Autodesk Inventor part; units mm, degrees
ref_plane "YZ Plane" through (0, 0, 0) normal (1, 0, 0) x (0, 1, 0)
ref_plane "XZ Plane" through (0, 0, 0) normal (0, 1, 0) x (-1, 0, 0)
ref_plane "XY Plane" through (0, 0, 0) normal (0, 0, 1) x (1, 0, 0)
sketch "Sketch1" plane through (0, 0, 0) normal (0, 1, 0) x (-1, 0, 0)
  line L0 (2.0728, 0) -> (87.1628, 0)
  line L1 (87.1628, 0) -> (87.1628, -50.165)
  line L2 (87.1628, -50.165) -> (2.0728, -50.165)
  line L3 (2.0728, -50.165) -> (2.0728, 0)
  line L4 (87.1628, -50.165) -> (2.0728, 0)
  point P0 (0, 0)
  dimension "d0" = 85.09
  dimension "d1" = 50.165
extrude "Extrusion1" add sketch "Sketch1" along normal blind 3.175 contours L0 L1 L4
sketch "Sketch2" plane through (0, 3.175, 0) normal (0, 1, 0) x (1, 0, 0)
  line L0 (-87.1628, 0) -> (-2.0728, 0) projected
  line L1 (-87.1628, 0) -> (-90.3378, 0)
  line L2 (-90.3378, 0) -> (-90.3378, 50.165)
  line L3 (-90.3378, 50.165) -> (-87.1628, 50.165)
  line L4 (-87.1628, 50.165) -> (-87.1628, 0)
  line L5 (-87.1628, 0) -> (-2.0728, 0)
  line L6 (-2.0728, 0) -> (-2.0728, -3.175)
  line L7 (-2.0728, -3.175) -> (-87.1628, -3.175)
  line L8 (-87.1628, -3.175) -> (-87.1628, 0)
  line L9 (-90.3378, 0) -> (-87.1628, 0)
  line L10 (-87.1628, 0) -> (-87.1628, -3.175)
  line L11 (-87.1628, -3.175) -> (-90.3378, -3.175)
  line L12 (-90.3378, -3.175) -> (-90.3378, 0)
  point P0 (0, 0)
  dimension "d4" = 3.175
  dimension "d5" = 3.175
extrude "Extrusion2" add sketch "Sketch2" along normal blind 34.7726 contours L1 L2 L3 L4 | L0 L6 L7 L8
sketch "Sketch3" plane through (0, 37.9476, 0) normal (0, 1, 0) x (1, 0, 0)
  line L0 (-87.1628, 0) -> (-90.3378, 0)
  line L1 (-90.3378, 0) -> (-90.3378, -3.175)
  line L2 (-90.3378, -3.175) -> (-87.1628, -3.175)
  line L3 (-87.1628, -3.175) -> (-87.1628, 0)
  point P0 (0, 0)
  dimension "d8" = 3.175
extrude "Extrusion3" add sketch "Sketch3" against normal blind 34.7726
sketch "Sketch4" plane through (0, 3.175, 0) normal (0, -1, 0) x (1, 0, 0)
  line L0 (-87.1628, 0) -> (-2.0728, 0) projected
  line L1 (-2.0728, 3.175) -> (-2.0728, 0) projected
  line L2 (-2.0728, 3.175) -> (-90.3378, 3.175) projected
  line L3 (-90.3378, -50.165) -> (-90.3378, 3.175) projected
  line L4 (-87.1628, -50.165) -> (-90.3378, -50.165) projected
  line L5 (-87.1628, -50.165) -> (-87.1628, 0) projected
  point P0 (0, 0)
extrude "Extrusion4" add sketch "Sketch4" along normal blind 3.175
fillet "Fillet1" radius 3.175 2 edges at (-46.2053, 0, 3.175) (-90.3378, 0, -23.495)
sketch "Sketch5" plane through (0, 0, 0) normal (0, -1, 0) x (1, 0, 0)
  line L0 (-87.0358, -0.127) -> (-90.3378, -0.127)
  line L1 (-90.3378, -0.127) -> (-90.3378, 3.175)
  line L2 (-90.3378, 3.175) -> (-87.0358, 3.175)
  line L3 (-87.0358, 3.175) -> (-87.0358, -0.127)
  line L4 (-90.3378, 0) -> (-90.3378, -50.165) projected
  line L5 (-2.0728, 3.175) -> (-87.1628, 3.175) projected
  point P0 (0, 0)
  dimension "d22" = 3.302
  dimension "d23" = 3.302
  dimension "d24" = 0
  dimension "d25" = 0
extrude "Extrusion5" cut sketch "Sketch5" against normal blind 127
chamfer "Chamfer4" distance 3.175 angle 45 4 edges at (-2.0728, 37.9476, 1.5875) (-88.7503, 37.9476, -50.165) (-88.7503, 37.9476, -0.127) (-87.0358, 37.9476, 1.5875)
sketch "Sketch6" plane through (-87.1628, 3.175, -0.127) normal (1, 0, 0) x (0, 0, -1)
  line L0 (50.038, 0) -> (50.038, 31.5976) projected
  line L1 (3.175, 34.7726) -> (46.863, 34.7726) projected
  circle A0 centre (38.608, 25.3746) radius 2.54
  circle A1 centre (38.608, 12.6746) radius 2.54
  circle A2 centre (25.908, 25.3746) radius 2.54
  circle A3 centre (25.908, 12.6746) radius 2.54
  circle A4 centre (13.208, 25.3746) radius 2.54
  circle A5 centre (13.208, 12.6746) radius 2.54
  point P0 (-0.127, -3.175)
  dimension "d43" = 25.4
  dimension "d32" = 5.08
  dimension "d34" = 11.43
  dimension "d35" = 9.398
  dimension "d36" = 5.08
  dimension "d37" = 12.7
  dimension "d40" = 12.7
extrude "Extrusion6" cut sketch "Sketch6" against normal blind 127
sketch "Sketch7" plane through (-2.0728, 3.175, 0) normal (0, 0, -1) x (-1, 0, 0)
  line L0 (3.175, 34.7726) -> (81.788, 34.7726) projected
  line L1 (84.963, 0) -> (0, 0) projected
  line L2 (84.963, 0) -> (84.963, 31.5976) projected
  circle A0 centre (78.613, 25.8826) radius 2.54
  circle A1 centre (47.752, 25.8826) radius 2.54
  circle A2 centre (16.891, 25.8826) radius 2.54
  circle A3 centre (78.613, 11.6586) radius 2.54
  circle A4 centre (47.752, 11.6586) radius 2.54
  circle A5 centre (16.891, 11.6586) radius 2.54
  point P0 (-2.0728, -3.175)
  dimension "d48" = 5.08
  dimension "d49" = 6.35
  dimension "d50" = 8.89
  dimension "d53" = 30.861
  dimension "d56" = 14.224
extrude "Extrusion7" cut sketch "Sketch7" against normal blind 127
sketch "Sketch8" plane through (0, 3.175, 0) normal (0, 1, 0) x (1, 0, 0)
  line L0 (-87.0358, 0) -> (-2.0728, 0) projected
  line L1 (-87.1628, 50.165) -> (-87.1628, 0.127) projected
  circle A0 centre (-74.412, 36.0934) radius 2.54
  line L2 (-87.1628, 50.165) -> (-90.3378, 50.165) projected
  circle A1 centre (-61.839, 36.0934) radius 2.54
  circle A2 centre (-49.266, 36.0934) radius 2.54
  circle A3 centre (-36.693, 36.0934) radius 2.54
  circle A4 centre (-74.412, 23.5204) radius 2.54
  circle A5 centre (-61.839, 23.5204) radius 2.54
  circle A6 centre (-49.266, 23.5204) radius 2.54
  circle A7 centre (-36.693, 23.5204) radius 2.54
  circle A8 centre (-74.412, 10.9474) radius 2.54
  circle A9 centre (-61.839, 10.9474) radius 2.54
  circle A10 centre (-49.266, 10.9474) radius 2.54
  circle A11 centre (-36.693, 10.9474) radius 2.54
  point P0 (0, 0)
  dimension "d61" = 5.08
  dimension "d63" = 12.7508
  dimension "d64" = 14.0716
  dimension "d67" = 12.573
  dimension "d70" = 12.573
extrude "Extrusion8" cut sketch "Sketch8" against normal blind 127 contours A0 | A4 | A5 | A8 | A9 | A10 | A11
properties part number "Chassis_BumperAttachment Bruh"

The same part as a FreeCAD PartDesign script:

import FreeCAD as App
import Part
import Sketcher
from FreeCAD import Vector
Q = App.Units.Quantity


def edges_at(feature, points):
    """Names of the edges that pass closest to the given points."""
    edges = feature.Shape.Edges
    near = lambda p: min(range(len(edges)), key=lambda i: edges[i].distToShape(Part.Vertex(*p))[0])
    return sorted({f"Edge{near(p) + 1}" for p in points})

doc = App.newDocument("Part")
params = doc.addObject("Spreadsheet::Sheet", "Params")
for row, (alias, value) in enumerate([
    ("sketch1_width", "3.35 in"),
    ("sketch1_height", "1.975 in"),
    ("pad1_length", "0.125 in"),
    ("sketch2_width", "0.125 in"),
    ("sketch2_width2", "3.35 in"),
    ("pad2_length", "1.369 in"),
    ("sketch3_width", "0.125 in"),
    ("pad3_length", "1.369 in"),
    ("sketch4_height", "2.1 in"),
    ("sketch4_width", "3.35 in"),
    ("sketch4_width2", "3.475 in"),
    ("pad4_length", "0.125 in"),
    ("fillet_radius", "0.125 in"),
    ("sketch5_width", "0.13 in"),
    ("pocket1_length", "5 in"),
    ("chamfer_size", "0.125 in"),
    ("sketch6_diameter", "0.2 in"),
    ("pocket2_length", "5 in"),
    ("sketch7_diameter", "0.2 in"),
    ("pocket3_length", "5 in"),
    ("sketch8_diameter", "0.2 in"),
    ("pocket4_length", "5 in"),
], start=1):
    params.set(f"A{row}", alias)
    params.set(f"B{row}", "=" + value)
    params.setAlias(f"B{row}", alias)

body = doc.addObject("PartDesign::Body", "Body")
body.AllowCompound = True

# Sketch on XZ plane
sketch1 = body.newObject("Sketcher::SketchObject", "Sketch")
sketch1.AttachmentSupport = (doc.getObject("XZ_Plane"), [""])
sketch1.MapMode = "FlatFace"
sketch1.addGeometry([
    Part.LineSegment(Vector(-87, 0, 0), Vector(-2, 0, 0)),
    Part.LineSegment(Vector(-2, 0, 0), Vector(-87, -50, 0)),
    Part.LineSegment(Vector(-87, -50, 0), Vector(-87, 0, 0)),
], False)
sketch1.addConstraint([
    Sketcher.Constraint("Coincident", 0, 2, 1, 1),
    Sketcher.Constraint("Coincident", 1, 2, 2, 1),
    Sketcher.Constraint("Coincident", 2, 2, 0, 1),
    Sketcher.Constraint("Horizontal", 0),
    Sketcher.Constraint("Vertical", 2),
    Sketcher.Constraint("PointOnObject", 0, 2, -1),
    Sketcher.Constraint("DistanceX", 0, 1, 0, 2, Q("3.35 in")),
    Sketcher.Constraint("DistanceY", 2, 1, 2, 2, Q("1.975 in")),
    Sketcher.Constraint("DistanceX", 0, 2, -1, 1, Q("0.0816 in")),
])
sketch1.setExpression("Constraints[6]", "Params.sketch1_width")
sketch1.setExpression("Constraints[7]", "Params.sketch1_height")
pad1 = body.newObject("PartDesign::Pad", "Pad")
pad1.Profile = sketch1
pad1.setExpression("Length", "Params.pad1_length")
pad1.Reversed = True

# Sketch on XZ plane
sketch2 = body.newObject("Sketcher::SketchObject", "Sketch001")
sketch2.AttachmentSupport = (doc.getObject("XZ_Plane"), [""])
sketch2.MapMode = "FlatFace"
sketch2.AttachmentOffset = App.Placement(Vector(0, 0, -0.125 * 25.4), App.Rotation())
sketch2.addGeometry([
    Part.LineSegment(Vector(-90.3, 0, 0), Vector(-87.2, 0, 0)),  # 0
    Part.LineSegment(Vector(-87.2, 0, 0), Vector(-87.2, -50.2, 0)),  # 1
    Part.LineSegment(Vector(-87.2, -50.2, 0), Vector(-90.3, -50.2, 0)),  # 2
    Part.LineSegment(Vector(-90.3, -50.2, 0), Vector(-90.3, 0, 0)),  # 3
    Part.LineSegment(Vector(-2.1, 0, 0), Vector(-87.2, 0, 0)),  # 4
    Part.LineSegment(Vector(-87.2, 0, 0), Vector(-87.2, 3.2, 0)),  # 5
    Part.LineSegment(Vector(-87.2, 3.2, 0), Vector(-2.1, 3.2, 0)),  # 6
    Part.LineSegment(Vector(-2.1, 3.2, 0), Vector(-2.1, 0, 0)),  # 7
], False)
sketch2.addConstraint([
    Sketcher.Constraint("Coincident", 0, 2, 1, 1),
    Sketcher.Constraint("Coincident", 1, 2, 2, 1),
    Sketcher.Constraint("Coincident", 2, 2, 3, 1),
    Sketcher.Constraint("Coincident", 3, 2, 0, 1),
    Sketcher.Constraint("Coincident", 4, 2, 5, 1),
    Sketcher.Constraint("Coincident", 5, 2, 6, 1),
    Sketcher.Constraint("Coincident", 6, 2, 7, 1),
    Sketcher.Constraint("Coincident", 7, 2, 4, 1),
    Sketcher.Constraint("Horizontal", 0),
    Sketcher.Constraint("Vertical", 1),
    Sketcher.Constraint("Horizontal", 2),
    Sketcher.Constraint("Vertical", 3),
    Sketcher.Constraint("Horizontal", 4),
    Sketcher.Constraint("Vertical", 5),
    Sketcher.Constraint("Horizontal", 6),
    Sketcher.Constraint("Vertical", 7),
    Sketcher.Constraint("Coincident", 4, 2, 0, 2),
    Sketcher.Constraint("PointOnObject", 0, 2, -1),
    Sketcher.Constraint("Equal", 2, 5),
    Sketcher.Constraint("DistanceX", 0, 1, 0, 2, Q("0.125 in")),
    Sketcher.Constraint("DistanceX", 4, 2, 4, 1, Q("3.35 in")),
    Sketcher.Constraint("DistanceY", 1, 2, 5, 2, Q("2.1 in")),
    Sketcher.Constraint("DistanceX", 0, 2, -1, 1, Q("3.4316 in")),
])
sketch2.setExpression("Constraints[19]", "Params.sketch2_width")
sketch2.setExpression("Constraints[20]", "Params.sketch2_width2")
pad2 = body.newObject("PartDesign::Pad", "Pad001")
pad2.Profile = sketch2
pad2.setExpression("Length", "Params.pad2_length")
pad2.Reversed = True

# Sketch on XZ plane
sketch3 = body.newObject("Sketcher::SketchObject", "Sketch002")
sketch3.AttachmentSupport = (doc.getObject("XZ_Plane"), [""])
sketch3.MapMode = "FlatFace"
sketch3.AttachmentOffset = App.Placement(Vector(0, 0, -1.494 * 25.4), App.Rotation())
sketch3.addGeometry([
    Part.LineSegment(Vector(-87.2, 3.2, 0), Vector(-87.2, 0, 0)),
    Part.LineSegment(Vector(-87.2, 0, 0), Vector(-90.3, 0, 0)),
    Part.LineSegment(Vector(-90.3, 0, 0), Vector(-90.3, 3.2, 0)),
    Part.LineSegment(Vector(-90.3, 3.2, 0), Vector(-87.2, 3.2, 0)),
], False)
sketch3.addConstraint([
    Sketcher.Constraint("Coincident", 0, 2, 1, 1),
    Sketcher.Constraint("Coincident", 1, 2, 2, 1),
    Sketcher.Constraint("Coincident", 2, 2, 3, 1),
    Sketcher.Constraint("Coincident", 3, 2, 0, 1),
    Sketcher.Constraint("Vertical", 0),
    Sketcher.Constraint("Horizontal", 1),
    Sketcher.Constraint("Vertical", 2),
    Sketcher.Constraint("Horizontal", 3),
    Sketcher.Constraint("PointOnObject", 0, 2, -1),
    Sketcher.Constraint("Equal", 3, 0),
    Sketcher.Constraint("DistanceX", 1, 2, 1, 1, Q("0.125 in")),
    Sketcher.Constraint("DistanceX", 0, 2, -1, 1, Q("3.4316 in")),
])
sketch3.setExpression("Constraints[10]", "Params.sketch3_width")
pad3 = body.newObject("PartDesign::Pad", "Pad002")
pad3.Profile = sketch3
pad3.setExpression("Length", "Params.pad3_length")

# Sketch on XZ plane
sketch4 = body.newObject("Sketcher::SketchObject", "Sketch003")
sketch4.AttachmentSupport = (doc.getObject("XZ_Plane"), [""])
sketch4.MapMode = "FlatFace"
sketch4.AttachmentOffset = App.Placement(Vector(0, 0, -0.125 * 25.4), App.Rotation())
sketch4.addGeometry([
    Part.LineSegment(Vector(-87.2, -50.2, 0), Vector(-87.2, 0, 0)),  # 0
    Part.LineSegment(Vector(-87.2, 0, 0), Vector(-2.1, 0, 0)),  # 1
    Part.LineSegment(Vector(-2.1, 0, 0), Vector(-2.1, 3.2, 0)),  # 2
    Part.LineSegment(Vector(-2.1, 3.2, 0), Vector(-90.3, 3.2, 0)),  # 3
    Part.LineSegment(Vector(-90.3, 3.2, 0), Vector(-90.3, -50.2, 0)),  # 4
    Part.LineSegment(Vector(-90.3, -50.2, 0), Vector(-87.2, -50.2, 0)),  # 5
], False)
sketch4.addConstraint([
    Sketcher.Constraint("Coincident", 0, 2, 1, 1),
    Sketcher.Constraint("Coincident", 1, 2, 2, 1),
    Sketcher.Constraint("Coincident", 2, 2, 3, 1),
    Sketcher.Constraint("Coincident", 3, 2, 4, 1),
    Sketcher.Constraint("Coincident", 4, 2, 5, 1),
    Sketcher.Constraint("Coincident", 5, 2, 0, 1),
    Sketcher.Constraint("Vertical", 0),
    Sketcher.Constraint("Horizontal", 1),
    Sketcher.Constraint("Vertical", 2),
    Sketcher.Constraint("Horizontal", 3),
    Sketcher.Constraint("Vertical", 4),
    Sketcher.Constraint("Horizontal", 5),
    Sketcher.Constraint("PointOnObject", 0, 2, -1),
    Sketcher.Constraint("Equal", 5, 2),
    Sketcher.Constraint("DistanceY", 4, 2, 4, 1, Q("2.1 in")),
    Sketcher.Constraint("DistanceX", 1, 1, 1, 2, Q("3.35 in")),
    Sketcher.Constraint("DistanceX", 3, 2, 3, 1, Q("3.475 in")),
    Sketcher.Constraint("DistanceX", 0, 2, -1, 1, Q("3.4316 in")),
])
sketch4.setExpression("Constraints[14]", "Params.sketch4_height")
sketch4.setExpression("Constraints[15]", "Params.sketch4_width")
sketch4.setExpression("Constraints[16]", "Params.sketch4_width2")
pad4 = body.newObject("PartDesign::Pad", "Pad003")
pad4.Profile = sketch4
pad4.setExpression("Length", "Params.pad4_length")
doc.recompute()

fillet = body.newObject("PartDesign::Fillet", "Fillet")
fillet.Base = (pad4, edges_at(pad4, [(-46.205, 0, 3.175), (-90.338, 0, -23.495)]))
fillet.setExpression("Radius", "Params.fillet_radius")

# Sketch on XZ plane
sketch5 = body.newObject("Sketcher::SketchObject", "Sketch004")
sketch5.AttachmentSupport = (doc.getObject("XZ_Plane"), [""])
sketch5.MapMode = "FlatFace"
sketch5.addGeometry([
    Part.LineSegment(Vector(-90.3, -0.1, 0), Vector(-87, -0.1, 0)),
    Part.LineSegment(Vector(-87, -0.1, 0), Vector(-87, 3.2, 0)),
    Part.LineSegment(Vector(-87, 3.2, 0), Vector(-90.3, 3.2, 0)),
    Part.LineSegment(Vector(-90.3, 3.2, 0), Vector(-90.3, -0.1, 0)),
], False)
sketch5.addConstraint([
    Sketcher.Constraint("Coincident", 0, 2, 1, 1),
    Sketcher.Constraint("Coincident", 1, 2, 2, 1),
    Sketcher.Constraint("Coincident", 2, 2, 3, 1),
    Sketcher.Constraint("Coincident", 3, 2, 0, 1),
    Sketcher.Constraint("Horizontal", 0),
    Sketcher.Constraint("Vertical", 1),
    Sketcher.Constraint("Horizontal", 2),
    Sketcher.Constraint("Vertical", 3),
    Sketcher.Constraint("Equal", 2, 1),
    Sketcher.Constraint("DistanceX", 0, 1, 0, 2, Q("0.13 in")),
    Sketcher.Constraint("DistanceY", 0, 2, -1, 1, Q("0.005 in")),
    Sketcher.Constraint("DistanceX", 0, 2, -1, 1, Q("3.4266 in")),
])
sketch5.setExpression("Constraints[9]", "Params.sketch5_width")
pocket1 = body.newObject("PartDesign::Pocket", "Pocket")
pocket1.Profile = sketch5
pocket1.setExpression("Length", "Params.pocket1_length")
doc.recompute()

chamfer = body.newObject("PartDesign::Chamfer", "Chamfer")
chamfer.Base = (pocket1, edges_at(pocket1, [
    (-2.073, 37.948, 1.587),
    (-88.75, 37.948, -50.165),
    (-88.75, 37.948, -0.127),
    (-87.036, 37.948, 1.587),
]))
chamfer.setExpression("Size", "Params.chamfer_size")

# Sketch on YZ plane
sketch6 = body.newObject("Sketcher::SketchObject", "Sketch005")
sketch6.AttachmentSupport = (doc.getObject("YZ_Plane"), [""])
sketch6.MapMode = "FlatFace"
sketch6.AttachmentOffset = App.Placement(Vector(0, 0, -3.4316063 * 25.4), App.Rotation())
sketch6.addGeometry([
    Part.Circle(Vector(28.5, -38.7, 0), Vector(0, 0, 1), 2.5),  # 0
    Part.Circle(Vector(15.8, -38.7, 0), Vector(0, 0, 1), 2.5),  # 1
    Part.Circle(Vector(28.5, -26, 0), Vector(0, 0, 1), 2.5),  # 2
    Part.Circle(Vector(15.8, -26, 0), Vector(0, 0, 1), 2.5),  # 3
    Part.Circle(Vector(28.5, -13.3, 0), Vector(0, 0, 1), 2.5),  # 4
    Part.Circle(Vector(15.8, -13.3, 0), Vector(0, 0, 1), 2.5),  # 5
], False)
sketch6.addConstraint([
    Sketcher.Constraint("Equal", 0, 1),
    Sketcher.Constraint("Equal", 1, 2),
    Sketcher.Constraint("Equal", 2, 3),
    Sketcher.Constraint("Equal", 3, 4),
    Sketcher.Constraint("Equal", 4, 5),
    Sketcher.Constraint("Horizontal", 0, 3, 1, 3),
    Sketcher.Constraint("Horizontal", 2, 3, 3, 3),
    Sketcher.Constraint("Horizontal", 4, 3, 5, 3),
    Sketcher.Constraint("Vertical", 0, 3, 2, 3),
    Sketcher.Constraint("Vertical", 1, 3, 3, 3),
    Sketcher.Constraint("Vertical", 2, 3, 4, 3),
    Sketcher.Constraint("Vertical", 3, 3, 5, 3),
    Sketcher.Constraint("Diameter", 0, Q("0.2 in")),
    Sketcher.Constraint("DistanceY", 0, 3, 4, 3, Q("1 in")),
    Sketcher.Constraint("DistanceX", 1, 3, 0, 3, Q("0.5 in")),
    Sketcher.Constraint("DistanceY", 0, 3, 2, 3, Q("0.5 in")),
    Sketcher.Constraint("DistanceX", -1, 1, 0, 3, Q("1.124 in")),
    Sketcher.Constraint("DistanceY", 0, 3, -1, 1, Q("1.525 in")),
])
sketch6.setExpression("Constraints[12]", "Params.sketch6_diameter")
pocket2 = body.newObject("PartDesign::Pocket", "Pocket001")
pocket2.Profile = sketch6
pocket2.setExpression("Length", "Params.pocket2_length")

# Sketch on XY plane
sketch7 = body.newObject("Sketcher::SketchObject", "Sketch006")
sketch7.AttachmentSupport = (doc.getObject("XY_Plane"), [""])
sketch7.MapMode = "FlatFace"
sketch7.addGeometry([
    Part.Circle(Vector(-80.7, 29.1, 0), Vector(0, 0, 1), 2.5),  # 0
    Part.Circle(Vector(-49.8, 29.1, 0), Vector(0, 0, 1), 2.5),  # 1
    Part.Circle(Vector(-19, 29.1, 0), Vector(0, 0, 1), 2.5),  # 2
    Part.Circle(Vector(-80.7, 14.8, 0), Vector(0, 0, 1), 2.5),  # 3
    Part.Circle(Vector(-49.8, 14.8, 0), Vector(0, 0, 1), 2.5),  # 4
    Part.Circle(Vector(-19, 14.8, 0), Vector(0, 0, 1), 2.5),  # 5
], False)
sketch7.addConstraint([
    Sketcher.Constraint("Equal", 0, 1),
    Sketcher.Constraint("Equal", 1, 2),
    Sketcher.Constraint("Equal", 2, 3),
    Sketcher.Constraint("Equal", 3, 4),
    Sketcher.Constraint("Equal", 4, 5),
    Sketcher.Constraint("Horizontal", 0, 3, 1, 3),
    Sketcher.Constraint("Horizontal", 1, 3, 2, 3),
    Sketcher.Constraint("Horizontal", 3, 3, 4, 3),
    Sketcher.Constraint("Horizontal", 4, 3, 5, 3),
    Sketcher.Constraint("Vertical", 0, 3, 3, 3),
    Sketcher.Constraint("Vertical", 1, 3, 4, 3),
    Sketcher.Constraint("Vertical", 2, 3, 5, 3),
    Sketcher.Constraint("Diameter", 0, Q("0.2 in")),
    Sketcher.Constraint("DistanceY", 3, 3, 0, 3, Q("0.56 in")),
    Sketcher.Constraint("DistanceX", 0, 3, 1, 3, Q("1.215 in")),
    Sketcher.Constraint("DistanceX", 1, 3, 2, 3, Q("1.215 in")),
    Sketcher.Constraint("DistanceY", -1, 1, 0, 3, Q("1.144 in")),
    Sketcher.Constraint("DistanceX", 0, 3, -1, 1, Q("3.1766 in")),
])
sketch7.setExpression("Constraints[12]", "Params.sketch7_diameter")
pocket3 = body.newObject("PartDesign::Pocket", "Pocket002")
pocket3.Profile = sketch7
pocket3.setExpression("Length", "Params.pocket3_length")
pocket3.Reversed = True

# Sketch on XZ plane
sketch8 = body.newObject("Sketcher::SketchObject", "Sketch007")
sketch8.AttachmentSupport = (doc.getObject("XZ_Plane"), [""])
sketch8.MapMode = "FlatFace"
sketch8.AttachmentOffset = App.Placement(Vector(0, 0, -0.125 * 25.4), App.Rotation())
sketch8.addGeometry([
    Part.Circle(Vector(-74.4, -36.1, 0), Vector(0, 0, 1), 2.5),  # 0
    Part.Circle(Vector(-74.4, -23.5, 0), Vector(0, 0, 1), 2.5),  # 1
    Part.Circle(Vector(-61.8, -23.5, 0), Vector(0, 0, 1), 2.5),  # 2
    Part.Circle(Vector(-74.4, -10.9, 0), Vector(0, 0, 1), 2.5),  # 3
    Part.Circle(Vector(-61.8, -10.9, 0), Vector(0, 0, 1), 2.5),  # 4
    Part.Circle(Vector(-49.3, -10.9, 0), Vector(0, 0, 1), 2.5),  # 5
    Part.Circle(Vector(-36.7, -10.9, 0), Vector(0, 0, 1), 2.5),  # 6
], False)
sketch8.addConstraint([
    Sketcher.Constraint("Equal", 0, 1),
    Sketcher.Constraint("Equal", 1, 2),
    Sketcher.Constraint("Equal", 2, 3),
    Sketcher.Constraint("Equal", 3, 4),
    Sketcher.Constraint("Equal", 4, 5),
    Sketcher.Constraint("Equal", 5, 6),
    Sketcher.Constraint("Horizontal", 1, 3, 2, 3),
    Sketcher.Constraint("Horizontal", 3, 3, 4, 3),
    Sketcher.Constraint("Horizontal", 4, 3, 5, 3),
    Sketcher.Constraint("Horizontal", 5, 3, 6, 3),
    Sketcher.Constraint("Vertical", 0, 3, 1, 3),
    Sketcher.Constraint("Vertical", 1, 3, 3, 3),
    Sketcher.Constraint("Vertical", 2, 3, 4, 3),
    Sketcher.Constraint("Diameter", 0, Q("0.2 in")),
    Sketcher.Constraint("DistanceY", 0, 3, 1, 3, Q("0.495 in")),
    Sketcher.Constraint("DistanceX", 1, 3, 2, 3, Q("0.495 in")),
    Sketcher.Constraint("DistanceY", 1, 3, 3, 3, Q("0.495 in")),
    Sketcher.Constraint("DistanceX", 4, 3, 5, 3, Q("0.495 in")),
    Sketcher.Constraint("DistanceX", 5, 3, 6, 3, Q("0.495 in")),
    Sketcher.Constraint("DistanceY", 0, 3, -1, 1, Q("1.421 in")),
    Sketcher.Constraint("DistanceX", 0, 3, -1, 1, Q("2.9296 in")),
])
sketch8.setExpression("Constraints[13]", "Params.sketch8_diameter")
pocket4 = body.newObject("PartDesign::Pocket", "Pocket003")
pocket4.Profile = sketch8
pocket4.setExpression("Length", "Params.pocket4_length")
pocket4.Reversed = True

doc.recompute()
